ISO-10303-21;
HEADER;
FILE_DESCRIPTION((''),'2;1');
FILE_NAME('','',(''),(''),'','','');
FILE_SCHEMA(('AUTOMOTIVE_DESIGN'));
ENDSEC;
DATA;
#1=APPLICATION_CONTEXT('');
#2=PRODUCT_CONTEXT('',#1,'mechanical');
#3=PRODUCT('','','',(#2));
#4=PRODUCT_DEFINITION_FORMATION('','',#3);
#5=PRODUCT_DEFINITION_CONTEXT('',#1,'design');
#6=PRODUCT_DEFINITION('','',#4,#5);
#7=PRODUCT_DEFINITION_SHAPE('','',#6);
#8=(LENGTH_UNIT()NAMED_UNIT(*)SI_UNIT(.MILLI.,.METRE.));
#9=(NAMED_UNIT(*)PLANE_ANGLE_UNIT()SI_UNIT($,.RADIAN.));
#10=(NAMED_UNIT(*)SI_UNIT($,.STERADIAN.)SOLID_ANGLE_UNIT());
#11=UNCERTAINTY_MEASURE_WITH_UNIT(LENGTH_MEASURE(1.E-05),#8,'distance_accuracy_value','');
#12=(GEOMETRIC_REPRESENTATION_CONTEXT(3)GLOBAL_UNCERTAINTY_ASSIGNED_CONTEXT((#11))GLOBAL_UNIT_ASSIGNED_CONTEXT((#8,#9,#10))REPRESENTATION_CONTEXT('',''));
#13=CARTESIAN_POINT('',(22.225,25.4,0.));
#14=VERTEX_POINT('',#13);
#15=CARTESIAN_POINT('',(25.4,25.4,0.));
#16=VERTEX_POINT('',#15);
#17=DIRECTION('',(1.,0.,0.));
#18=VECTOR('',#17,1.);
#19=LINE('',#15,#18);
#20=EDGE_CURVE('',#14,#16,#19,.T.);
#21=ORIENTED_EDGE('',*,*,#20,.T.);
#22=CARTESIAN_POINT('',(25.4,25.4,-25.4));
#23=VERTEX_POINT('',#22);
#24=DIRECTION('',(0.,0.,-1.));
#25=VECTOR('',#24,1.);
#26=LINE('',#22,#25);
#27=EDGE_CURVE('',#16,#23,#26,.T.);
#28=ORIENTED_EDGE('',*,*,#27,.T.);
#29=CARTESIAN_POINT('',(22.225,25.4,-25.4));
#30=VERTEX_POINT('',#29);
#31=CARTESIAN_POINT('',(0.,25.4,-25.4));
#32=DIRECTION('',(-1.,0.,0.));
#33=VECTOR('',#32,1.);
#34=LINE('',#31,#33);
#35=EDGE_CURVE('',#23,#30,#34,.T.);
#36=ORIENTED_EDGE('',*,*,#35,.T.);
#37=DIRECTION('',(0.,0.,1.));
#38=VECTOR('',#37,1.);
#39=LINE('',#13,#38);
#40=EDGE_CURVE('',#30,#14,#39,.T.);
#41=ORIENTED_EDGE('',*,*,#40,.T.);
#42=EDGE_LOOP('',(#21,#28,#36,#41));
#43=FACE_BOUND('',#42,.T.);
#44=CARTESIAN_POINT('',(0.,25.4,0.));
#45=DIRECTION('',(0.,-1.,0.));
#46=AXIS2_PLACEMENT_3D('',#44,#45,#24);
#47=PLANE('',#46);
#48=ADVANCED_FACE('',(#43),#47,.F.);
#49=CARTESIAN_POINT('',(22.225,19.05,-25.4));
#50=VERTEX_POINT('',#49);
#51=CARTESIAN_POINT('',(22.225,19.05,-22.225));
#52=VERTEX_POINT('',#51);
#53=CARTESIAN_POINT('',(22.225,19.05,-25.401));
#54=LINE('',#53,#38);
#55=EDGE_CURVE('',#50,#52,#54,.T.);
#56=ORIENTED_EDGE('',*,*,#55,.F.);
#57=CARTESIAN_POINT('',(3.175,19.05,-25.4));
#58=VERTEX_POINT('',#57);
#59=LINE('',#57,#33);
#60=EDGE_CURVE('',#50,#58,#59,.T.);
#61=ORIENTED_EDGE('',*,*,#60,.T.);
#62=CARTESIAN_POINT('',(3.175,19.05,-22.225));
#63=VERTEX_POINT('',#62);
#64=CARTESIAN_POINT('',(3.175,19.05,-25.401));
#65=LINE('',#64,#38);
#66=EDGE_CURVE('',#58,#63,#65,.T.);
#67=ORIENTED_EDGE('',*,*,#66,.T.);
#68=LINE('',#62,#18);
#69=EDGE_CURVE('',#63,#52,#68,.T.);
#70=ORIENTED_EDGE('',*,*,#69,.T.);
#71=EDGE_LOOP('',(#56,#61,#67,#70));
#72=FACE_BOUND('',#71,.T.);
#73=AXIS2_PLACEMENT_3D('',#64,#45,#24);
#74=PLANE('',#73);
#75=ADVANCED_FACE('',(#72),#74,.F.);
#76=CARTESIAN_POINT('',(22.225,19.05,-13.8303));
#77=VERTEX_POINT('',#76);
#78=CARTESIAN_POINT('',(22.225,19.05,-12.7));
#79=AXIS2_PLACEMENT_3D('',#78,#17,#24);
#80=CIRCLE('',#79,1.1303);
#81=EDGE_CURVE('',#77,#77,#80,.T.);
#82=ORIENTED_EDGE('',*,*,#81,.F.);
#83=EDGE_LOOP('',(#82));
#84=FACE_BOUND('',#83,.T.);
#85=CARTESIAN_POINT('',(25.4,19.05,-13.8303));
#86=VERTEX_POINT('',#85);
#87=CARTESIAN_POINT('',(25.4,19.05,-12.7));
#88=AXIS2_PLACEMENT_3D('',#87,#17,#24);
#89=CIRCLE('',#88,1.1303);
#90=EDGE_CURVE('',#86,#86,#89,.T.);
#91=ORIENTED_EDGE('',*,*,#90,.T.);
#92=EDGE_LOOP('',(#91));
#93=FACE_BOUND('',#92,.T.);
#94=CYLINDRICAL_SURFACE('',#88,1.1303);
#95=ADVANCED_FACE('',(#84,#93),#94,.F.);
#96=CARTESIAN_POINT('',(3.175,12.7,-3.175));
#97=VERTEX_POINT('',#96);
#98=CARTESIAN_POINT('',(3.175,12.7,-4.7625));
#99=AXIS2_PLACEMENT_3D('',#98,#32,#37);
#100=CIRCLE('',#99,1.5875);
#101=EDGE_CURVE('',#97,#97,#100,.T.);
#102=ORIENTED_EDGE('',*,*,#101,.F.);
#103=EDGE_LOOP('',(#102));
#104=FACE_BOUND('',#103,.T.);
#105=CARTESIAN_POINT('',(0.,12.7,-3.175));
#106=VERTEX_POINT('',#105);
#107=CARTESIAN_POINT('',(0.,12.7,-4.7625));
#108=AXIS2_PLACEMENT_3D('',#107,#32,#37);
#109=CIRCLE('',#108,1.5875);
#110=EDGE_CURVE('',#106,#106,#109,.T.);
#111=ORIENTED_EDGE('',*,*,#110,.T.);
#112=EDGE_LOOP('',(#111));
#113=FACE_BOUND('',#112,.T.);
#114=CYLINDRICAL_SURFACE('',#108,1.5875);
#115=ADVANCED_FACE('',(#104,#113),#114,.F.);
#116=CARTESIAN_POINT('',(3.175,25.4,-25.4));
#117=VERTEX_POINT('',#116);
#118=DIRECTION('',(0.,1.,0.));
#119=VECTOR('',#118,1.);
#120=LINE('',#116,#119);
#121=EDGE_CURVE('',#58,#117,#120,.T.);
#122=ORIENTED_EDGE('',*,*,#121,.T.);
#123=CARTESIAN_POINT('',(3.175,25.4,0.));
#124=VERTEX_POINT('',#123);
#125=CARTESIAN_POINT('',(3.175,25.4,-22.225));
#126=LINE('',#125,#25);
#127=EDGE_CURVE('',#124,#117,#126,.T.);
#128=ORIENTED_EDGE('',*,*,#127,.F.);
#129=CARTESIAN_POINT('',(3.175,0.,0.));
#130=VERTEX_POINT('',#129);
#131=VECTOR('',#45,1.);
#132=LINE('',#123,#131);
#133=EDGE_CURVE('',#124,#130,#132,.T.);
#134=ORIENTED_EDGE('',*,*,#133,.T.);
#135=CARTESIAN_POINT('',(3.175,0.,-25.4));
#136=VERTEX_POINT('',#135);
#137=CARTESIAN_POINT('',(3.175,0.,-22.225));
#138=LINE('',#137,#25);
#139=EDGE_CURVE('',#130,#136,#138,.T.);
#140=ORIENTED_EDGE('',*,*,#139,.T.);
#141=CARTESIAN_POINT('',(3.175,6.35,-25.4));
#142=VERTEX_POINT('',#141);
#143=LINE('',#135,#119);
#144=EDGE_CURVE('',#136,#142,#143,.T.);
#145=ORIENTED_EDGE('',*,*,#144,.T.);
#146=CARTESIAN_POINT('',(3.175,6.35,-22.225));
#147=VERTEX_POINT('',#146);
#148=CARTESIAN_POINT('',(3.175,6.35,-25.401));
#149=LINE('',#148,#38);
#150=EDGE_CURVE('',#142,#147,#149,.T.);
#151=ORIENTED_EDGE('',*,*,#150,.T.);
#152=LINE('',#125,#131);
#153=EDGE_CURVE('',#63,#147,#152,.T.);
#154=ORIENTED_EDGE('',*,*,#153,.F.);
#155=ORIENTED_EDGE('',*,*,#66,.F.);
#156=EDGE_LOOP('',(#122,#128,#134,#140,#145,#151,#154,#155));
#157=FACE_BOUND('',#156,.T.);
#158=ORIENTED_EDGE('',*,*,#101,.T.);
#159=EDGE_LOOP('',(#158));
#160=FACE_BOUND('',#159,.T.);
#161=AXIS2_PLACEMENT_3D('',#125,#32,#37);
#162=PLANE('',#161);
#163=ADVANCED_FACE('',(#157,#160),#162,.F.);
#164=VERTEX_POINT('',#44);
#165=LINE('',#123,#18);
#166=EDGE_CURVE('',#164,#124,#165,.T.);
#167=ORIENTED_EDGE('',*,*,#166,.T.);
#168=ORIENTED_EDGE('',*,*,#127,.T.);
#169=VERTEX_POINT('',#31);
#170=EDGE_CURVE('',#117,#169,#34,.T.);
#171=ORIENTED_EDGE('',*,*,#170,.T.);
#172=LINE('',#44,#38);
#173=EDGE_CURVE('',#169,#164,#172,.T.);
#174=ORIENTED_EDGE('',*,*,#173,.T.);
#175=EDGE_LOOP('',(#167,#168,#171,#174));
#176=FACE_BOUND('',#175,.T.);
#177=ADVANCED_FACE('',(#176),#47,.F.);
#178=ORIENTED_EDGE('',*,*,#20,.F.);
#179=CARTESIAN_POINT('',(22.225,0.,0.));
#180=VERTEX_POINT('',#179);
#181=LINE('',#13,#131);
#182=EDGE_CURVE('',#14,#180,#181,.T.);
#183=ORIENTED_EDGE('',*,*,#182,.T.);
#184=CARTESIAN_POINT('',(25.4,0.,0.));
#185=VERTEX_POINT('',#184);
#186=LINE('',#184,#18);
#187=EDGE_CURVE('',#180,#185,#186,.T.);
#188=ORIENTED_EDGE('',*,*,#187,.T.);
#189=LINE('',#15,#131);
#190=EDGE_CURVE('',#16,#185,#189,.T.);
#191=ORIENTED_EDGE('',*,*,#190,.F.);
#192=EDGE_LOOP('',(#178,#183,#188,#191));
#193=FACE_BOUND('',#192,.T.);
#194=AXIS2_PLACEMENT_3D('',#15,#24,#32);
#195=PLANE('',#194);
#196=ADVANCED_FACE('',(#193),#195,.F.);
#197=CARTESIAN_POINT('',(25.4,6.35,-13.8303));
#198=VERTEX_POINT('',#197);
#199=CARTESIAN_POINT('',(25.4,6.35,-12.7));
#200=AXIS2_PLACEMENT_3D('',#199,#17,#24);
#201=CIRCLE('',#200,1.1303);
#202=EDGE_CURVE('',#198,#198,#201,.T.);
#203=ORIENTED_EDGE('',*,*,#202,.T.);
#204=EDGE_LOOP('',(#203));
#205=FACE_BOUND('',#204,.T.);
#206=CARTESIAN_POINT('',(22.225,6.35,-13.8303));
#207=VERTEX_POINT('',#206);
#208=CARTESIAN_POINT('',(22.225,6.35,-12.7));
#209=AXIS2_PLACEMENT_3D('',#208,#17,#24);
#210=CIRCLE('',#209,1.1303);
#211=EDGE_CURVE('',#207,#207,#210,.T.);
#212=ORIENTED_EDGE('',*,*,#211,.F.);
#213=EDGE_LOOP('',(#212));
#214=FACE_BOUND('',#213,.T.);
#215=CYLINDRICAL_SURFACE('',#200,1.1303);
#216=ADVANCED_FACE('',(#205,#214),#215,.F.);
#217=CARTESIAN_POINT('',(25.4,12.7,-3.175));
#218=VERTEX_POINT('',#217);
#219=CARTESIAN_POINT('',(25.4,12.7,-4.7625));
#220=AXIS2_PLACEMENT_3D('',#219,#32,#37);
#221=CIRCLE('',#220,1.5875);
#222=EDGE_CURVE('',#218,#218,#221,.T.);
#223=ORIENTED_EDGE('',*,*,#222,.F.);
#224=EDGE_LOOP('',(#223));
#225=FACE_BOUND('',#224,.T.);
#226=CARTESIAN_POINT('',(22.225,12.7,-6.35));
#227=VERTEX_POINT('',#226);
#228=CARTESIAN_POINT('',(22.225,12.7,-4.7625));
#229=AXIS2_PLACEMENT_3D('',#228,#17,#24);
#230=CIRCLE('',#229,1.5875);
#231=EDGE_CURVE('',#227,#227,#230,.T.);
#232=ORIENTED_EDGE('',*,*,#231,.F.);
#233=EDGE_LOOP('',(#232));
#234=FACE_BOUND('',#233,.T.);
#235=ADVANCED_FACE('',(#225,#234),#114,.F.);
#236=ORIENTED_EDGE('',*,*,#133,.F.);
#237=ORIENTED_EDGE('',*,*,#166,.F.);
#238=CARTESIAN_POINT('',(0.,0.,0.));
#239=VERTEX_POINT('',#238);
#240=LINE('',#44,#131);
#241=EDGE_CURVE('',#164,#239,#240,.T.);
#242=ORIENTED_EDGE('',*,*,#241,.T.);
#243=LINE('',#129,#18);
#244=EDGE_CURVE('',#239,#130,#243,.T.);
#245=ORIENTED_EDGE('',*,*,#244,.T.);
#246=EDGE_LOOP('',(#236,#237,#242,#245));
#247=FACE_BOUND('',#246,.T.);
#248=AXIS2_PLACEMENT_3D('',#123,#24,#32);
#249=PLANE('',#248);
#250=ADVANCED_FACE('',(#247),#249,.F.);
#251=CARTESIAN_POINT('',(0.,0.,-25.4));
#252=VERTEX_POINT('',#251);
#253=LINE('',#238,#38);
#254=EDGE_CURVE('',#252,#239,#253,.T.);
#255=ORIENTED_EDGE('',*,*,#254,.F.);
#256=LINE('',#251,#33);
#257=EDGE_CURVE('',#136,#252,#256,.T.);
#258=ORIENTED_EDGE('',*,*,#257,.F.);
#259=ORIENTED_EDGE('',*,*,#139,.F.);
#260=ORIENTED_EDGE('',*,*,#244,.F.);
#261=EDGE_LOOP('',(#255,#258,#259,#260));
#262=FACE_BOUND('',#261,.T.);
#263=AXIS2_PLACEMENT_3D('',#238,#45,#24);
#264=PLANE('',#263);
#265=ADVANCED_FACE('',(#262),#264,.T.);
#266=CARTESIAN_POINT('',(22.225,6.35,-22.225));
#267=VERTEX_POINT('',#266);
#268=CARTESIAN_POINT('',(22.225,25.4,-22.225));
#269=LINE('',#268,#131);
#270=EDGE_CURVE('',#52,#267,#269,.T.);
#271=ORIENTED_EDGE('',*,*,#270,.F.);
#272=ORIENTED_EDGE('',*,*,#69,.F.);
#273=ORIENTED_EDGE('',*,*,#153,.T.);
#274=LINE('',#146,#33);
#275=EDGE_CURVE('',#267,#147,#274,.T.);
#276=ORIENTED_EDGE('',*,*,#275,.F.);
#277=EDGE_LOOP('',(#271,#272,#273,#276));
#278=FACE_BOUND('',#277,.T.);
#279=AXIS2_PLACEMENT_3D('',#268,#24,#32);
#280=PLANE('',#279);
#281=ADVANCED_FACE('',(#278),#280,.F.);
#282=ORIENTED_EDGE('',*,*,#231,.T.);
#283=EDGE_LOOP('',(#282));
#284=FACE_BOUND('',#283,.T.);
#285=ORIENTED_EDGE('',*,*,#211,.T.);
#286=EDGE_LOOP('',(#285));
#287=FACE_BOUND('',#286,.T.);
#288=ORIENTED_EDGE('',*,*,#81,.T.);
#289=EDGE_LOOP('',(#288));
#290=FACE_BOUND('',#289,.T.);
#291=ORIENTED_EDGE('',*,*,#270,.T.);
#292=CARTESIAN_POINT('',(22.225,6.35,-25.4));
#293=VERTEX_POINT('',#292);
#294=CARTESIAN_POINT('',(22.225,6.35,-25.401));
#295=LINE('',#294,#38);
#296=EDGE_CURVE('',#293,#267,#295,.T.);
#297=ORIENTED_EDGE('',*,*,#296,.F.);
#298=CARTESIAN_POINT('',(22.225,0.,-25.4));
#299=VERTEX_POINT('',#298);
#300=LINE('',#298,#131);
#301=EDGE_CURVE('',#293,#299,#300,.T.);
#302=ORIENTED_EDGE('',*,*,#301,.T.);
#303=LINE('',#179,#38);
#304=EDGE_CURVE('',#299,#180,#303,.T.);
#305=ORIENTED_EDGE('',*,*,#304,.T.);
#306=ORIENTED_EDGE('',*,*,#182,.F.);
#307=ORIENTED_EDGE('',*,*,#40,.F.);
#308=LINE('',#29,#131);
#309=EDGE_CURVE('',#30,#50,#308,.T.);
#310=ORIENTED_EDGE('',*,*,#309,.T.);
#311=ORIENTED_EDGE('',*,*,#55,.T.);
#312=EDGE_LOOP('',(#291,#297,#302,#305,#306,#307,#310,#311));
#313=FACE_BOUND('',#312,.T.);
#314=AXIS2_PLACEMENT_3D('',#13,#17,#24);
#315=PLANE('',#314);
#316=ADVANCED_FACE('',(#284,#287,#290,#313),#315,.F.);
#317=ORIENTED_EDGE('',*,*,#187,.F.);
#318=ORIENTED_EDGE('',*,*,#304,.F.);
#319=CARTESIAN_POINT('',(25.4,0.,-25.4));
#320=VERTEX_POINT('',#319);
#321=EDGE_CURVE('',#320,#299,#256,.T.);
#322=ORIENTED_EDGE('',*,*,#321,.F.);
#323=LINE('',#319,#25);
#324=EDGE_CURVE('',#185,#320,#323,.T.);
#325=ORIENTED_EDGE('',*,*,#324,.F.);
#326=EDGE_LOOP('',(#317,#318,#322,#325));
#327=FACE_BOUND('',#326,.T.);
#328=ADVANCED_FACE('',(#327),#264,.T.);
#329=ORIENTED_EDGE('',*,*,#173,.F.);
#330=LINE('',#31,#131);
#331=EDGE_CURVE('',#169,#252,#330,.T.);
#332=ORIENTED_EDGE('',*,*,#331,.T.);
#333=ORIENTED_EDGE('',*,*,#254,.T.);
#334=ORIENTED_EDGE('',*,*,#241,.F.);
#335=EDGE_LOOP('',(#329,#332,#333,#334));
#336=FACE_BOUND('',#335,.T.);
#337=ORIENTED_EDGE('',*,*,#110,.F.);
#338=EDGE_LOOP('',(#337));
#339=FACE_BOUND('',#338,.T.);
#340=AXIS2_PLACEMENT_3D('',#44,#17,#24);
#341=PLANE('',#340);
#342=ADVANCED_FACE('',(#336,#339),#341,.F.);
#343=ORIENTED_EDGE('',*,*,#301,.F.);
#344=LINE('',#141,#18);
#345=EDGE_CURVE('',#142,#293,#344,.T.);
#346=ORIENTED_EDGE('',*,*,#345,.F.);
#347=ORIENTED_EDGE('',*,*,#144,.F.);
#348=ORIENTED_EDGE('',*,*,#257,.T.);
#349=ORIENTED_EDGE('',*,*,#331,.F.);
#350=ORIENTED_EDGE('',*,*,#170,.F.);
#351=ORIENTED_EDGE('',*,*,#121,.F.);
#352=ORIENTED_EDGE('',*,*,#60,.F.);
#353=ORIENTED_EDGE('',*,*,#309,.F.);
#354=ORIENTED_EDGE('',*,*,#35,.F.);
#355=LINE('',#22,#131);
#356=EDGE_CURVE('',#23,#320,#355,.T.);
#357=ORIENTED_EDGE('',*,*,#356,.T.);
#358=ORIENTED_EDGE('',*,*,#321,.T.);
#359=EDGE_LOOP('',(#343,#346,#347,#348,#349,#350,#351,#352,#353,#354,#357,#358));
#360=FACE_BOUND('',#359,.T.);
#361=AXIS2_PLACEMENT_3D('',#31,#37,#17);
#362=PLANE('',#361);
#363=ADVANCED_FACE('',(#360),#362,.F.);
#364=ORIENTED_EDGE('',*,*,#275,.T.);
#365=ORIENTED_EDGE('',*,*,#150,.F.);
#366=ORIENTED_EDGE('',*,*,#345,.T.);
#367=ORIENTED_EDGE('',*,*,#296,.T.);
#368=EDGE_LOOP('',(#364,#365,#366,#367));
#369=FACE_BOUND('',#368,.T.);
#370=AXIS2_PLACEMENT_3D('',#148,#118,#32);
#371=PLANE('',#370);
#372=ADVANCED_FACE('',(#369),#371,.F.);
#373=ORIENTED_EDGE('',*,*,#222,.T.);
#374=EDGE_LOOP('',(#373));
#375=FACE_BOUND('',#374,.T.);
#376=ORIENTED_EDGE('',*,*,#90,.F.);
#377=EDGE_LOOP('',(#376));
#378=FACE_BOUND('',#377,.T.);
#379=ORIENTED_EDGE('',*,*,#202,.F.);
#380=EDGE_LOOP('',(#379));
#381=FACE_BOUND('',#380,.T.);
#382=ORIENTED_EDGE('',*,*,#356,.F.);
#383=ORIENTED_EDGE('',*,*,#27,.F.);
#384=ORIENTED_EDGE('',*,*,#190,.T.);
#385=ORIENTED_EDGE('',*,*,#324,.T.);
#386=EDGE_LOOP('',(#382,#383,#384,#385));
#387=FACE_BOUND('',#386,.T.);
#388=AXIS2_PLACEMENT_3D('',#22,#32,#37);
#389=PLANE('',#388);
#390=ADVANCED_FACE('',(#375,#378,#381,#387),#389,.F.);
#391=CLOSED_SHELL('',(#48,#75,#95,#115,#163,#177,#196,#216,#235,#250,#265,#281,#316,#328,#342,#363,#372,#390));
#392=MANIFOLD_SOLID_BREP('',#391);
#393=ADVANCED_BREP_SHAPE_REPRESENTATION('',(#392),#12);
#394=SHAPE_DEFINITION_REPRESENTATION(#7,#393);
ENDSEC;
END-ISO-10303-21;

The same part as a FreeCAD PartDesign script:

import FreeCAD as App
import Part
import Sketcher

V = App.Vector
Q = App.Units.Quantity


def add_polygon(sketch, points):
    """Adds a closed chain of lines whose ends are joined by coincident constraints."""
    first, n = sketch.GeometryCount, len(points)
    for a, b in zip(points, points[1:] + points[:1]):
        sketch.addGeometry(Part.LineSegment(App.Vector(*a, 0), App.Vector(*b, 0)), False)
    for i in range(n):
        sketch.addConstraint(Sketcher.Constraint("Coincident", first + i, 2, first + (i + 1) % n, 1))

doc = App.newDocument("Part")
params = doc.addObject("Spreadsheet::Sheet", "Params")
for row, (alias, value) in enumerate([
    ("sketch1_width", "1 in"),
    ("sketch1_width2", "0.75 in"),
    ("sketch1_height", "0.875 in"),
    ("pad1_length", "1 in"),
    ("sketch2_diameter", "0.125 in"),
    ("hole_diameter", "0.125 in"),
    ("sketch3_diameter", "0.089 in"),
    ("hole2_diameter", "0.089 in"),
    ("hole2_depth", "0.125 in"),
    ("sketch4_width", "0.75 in"),
    ("sketch4_height", "0.25 in"),
    ("sketch5_width", "0.75 in"),
    ("sketch5_height", "0.25 in"),
], start=1):
    params.set(f"A{row}", alias)
    params.set(f"B{row}", "=" + value)
    params.setAlias(f"B{row}", alias)

body = doc.addObject("PartDesign::Body", "Body")

# Sketch on XZ plane
sketch1 = doc.addObject("Sketcher::SketchObject", "Sketch")
body.addObject(sketch1)
sketch1.AttachmentSupport = (doc.XZ_Plane, [""])
sketch1.MapMode = "FlatFace"
add_polygon(sketch1, [(0, -25.4), (0, 0), (3.175, 0), (3.175, -22.225), (22.225, -22.225), (22.225, 0), (25.4, 0), (25.4, -25.4)])  # lines 0-7
sketch1.addConstraint(Sketcher.Constraint("Vertical", 0))
sketch1.addConstraint(Sketcher.Constraint("Horizontal", 1))
sketch1.addConstraint(Sketcher.Constraint("Vertical", 2))
sketch1.addConstraint(Sketcher.Constraint("Horizontal", 3))
sketch1.addConstraint(Sketcher.Constraint("Vertical", 4))
sketch1.addConstraint(Sketcher.Constraint("Horizontal", 5))
sketch1.addConstraint(Sketcher.Constraint("Vertical", 6))
sketch1.addConstraint(Sketcher.Constraint("Horizontal", 7))
sketch1.addConstraint(Sketcher.Constraint("Coincident", 0, 2, -1, 1))
sketch1.addConstraint(Sketcher.Constraint("PointOnObject", 4, 2, -1))
sketch1.addConstraint(Sketcher.Constraint("Equal", 1, 5))
sketch1.addConstraint(Sketcher.Constraint("Equal", 7, 0))
sketch1.addConstraint(Sketcher.Constraint("DistanceX", 7, 2, 7, 1, Q("1 in")))
sketch1.addConstraint(Sketcher.Constraint("DistanceX", 3, 1, 3, 2, Q("0.75 in")))
sketch1.addConstraint(Sketcher.Constraint("DistanceY", 2, 2, 2, 1, Q("0.875 in")))
sketch1.setExpression("Constraints[20]", "Params.sketch1_width")
sketch1.setExpression("Constraints[21]", "Params.sketch1_width2")
sketch1.setExpression("Constraints[22]", "Params.sketch1_height")
pad1 = doc.addObject("PartDesign::Pad", "Pad")
body.addObject(pad1)
pad1.Profile = sketch1
pad1.setExpression("Length", "Params.pad1_length")
pad1.Reversed = True

# Sketch on YZ plane
sketch2 = doc.addObject("Sketcher::SketchObject", "Sketch001")
body.addObject(sketch2)
sketch2.AttachmentSupport = (doc.YZ_Plane, [""])
sketch2.MapMode = "FlatFace"
sketch2.addGeometry(Part.Circle(V(12.7, -4.7625, 0), V(0, 0, 1), 1.5875), False)
sketch2.addConstraint(Sketcher.Constraint("Diameter", 0, Q("0.125 in")))
sketch2.addConstraint(Sketcher.Constraint("DistanceX", -1, 1, 0, 3, Q("0.5 in")))
sketch2.addConstraint(Sketcher.Constraint("DistanceY", 0, 3, -1, 1, Q("0.1875 in")))
sketch2.setExpression("Constraints[0]", "Params.sketch2_diameter")
doc.recompute()
hole = doc.addObject("PartDesign::Hole", "Hole")
body.addObject(hole)
hole.Profile = sketch2
hole.ThreadType = "None"
hole.setExpression("Diameter", "Params.hole_diameter")
hole.DepthType = "ThroughAll"
hole.Reversed = True

# Sketch on YZ plane
sketch3 = doc.addObject("Sketcher::SketchObject", "Sketch002")
body.addObject(sketch3)
sketch3.AttachmentSupport = (doc.YZ_Plane, [""])
sketch3.MapMode = "FlatFace"
sketch3.AttachmentOffset = App.Placement(V(0, 0, 1 * 25.4), App.Rotation())
sketch3.addGeometry(Part.Circle(V(19.05, -12.7, 0), V(0, 0, 1), 1.1303), False)
sketch3.addGeometry(Part.Circle(V(6.35, -12.7, 0), V(0, 0, 1), 1.1303), False)
sketch3.addConstraint(Sketcher.Constraint("Equal", 0, 1))
sketch3.addConstraint(Sketcher.Constraint("Horizontal", 0, 3, 1, 3))
sketch3.addConstraint(Sketcher.Constraint("Diameter", 0, Q("0.089 in")))
sketch3.addConstraint(Sketcher.Constraint("DistanceY", 0, 3, -1, 1, Q("0.5 in")))
sketch3.addConstraint(Sketcher.Constraint("DistanceX", 1, 3, 0, 3, Q("0.5 in")))
sketch3.addConstraint(Sketcher.Constraint("DistanceX", -1, 1, 0, 3, Q("0.75 in")))
sketch3.setExpression("Constraints[2]", "Params.sketch3_diameter")
doc.recompute()
hole2 = doc.addObject("PartDesign::Hole", "Hole001")
body.addObject(hole2)
hole2.Profile = sketch3
hole2.ThreadType = "None"
hole2.setExpression("Diameter", "Params.hole2_diameter")
hole2.DepthType = "Dimension"
hole2.setExpression("Depth", "Params.hole2_depth")
hole2.DrillPoint = "Flat"

# Sketch on XY plane
sketch4 = doc.addObject("Sketcher::SketchObject", "Sketch003")
body.addObject(sketch4)
sketch4.AttachmentSupport = (doc.XY_Plane, [""])
sketch4.MapMode = "FlatFace"
sketch4.AttachmentOffset = App.Placement(V(0, 0, -0.875 * 25.4), App.Rotation())
add_polygon(sketch4, [(3.175, 25.4), (3.175, 19.05), (22.225, 19.05), (22.225, 25.4)])  # lines 0-3
sketch4.addConstraint(Sketcher.Constraint("Vertical", 0))
sketch4.addConstraint(Sketcher.Constraint("Horizontal", 1))
sketch4.addConstraint(Sketcher.Constraint("Vertical", 2))
sketch4.addConstraint(Sketcher.Constraint("Horizontal", 3))
sketch4.addConstraint(Sketcher.Constraint("DistanceY", -1, 1, 2, 2, Q("1 in")))
sketch4.addConstraint(Sketcher.Constraint("DistanceX", 1, 1, 1, 2, Q("0.75 in")))
sketch4.addConstraint(Sketcher.Constraint("DistanceY", 0, 2, 0, 1, Q("0.25 in")))
sketch4.addConstraint(Sketcher.Constraint("DistanceX", -1, 1, 0, 2, Q("0.125 in")))
sketch4.setExpression("Constraints[9]", "Params.sketch4_width")
sketch4.setExpression("Constraints[10]", "Params.sketch4_height")
pocket1 = doc.addObject("PartDesign::Pocket", "Pocket")
body.addObject(pocket1)
pocket1.Profile = sketch4
pocket1.Type = "UpToFirst"

# Sketch on XY plane
sketch5 = doc.addObject("Sketcher::SketchObject", "Sketch004")
body.addObject(sketch5)
sketch5.AttachmentSupport = (doc.XY_Plane, [""])
sketch5.MapMode = "FlatFace"
sketch5.AttachmentOffset = App.Placement(V(0, 0, -0.875 * 25.4), App.Rotation())
add_polygon(sketch5, [(3.175, 6.35), (3.175, 0), (22.225, 0), (22.225, 6.35)])  # lines 0-3
sketch5.addConstraint(Sketcher.Constraint("Vertical", 0))
sketch5.addConstraint(Sketcher.Constraint("Horizontal", 1))
sketch5.addConstraint(Sketcher.Constraint("Vertical", 2))
sketch5.addConstraint(Sketcher.Constraint("Horizontal", 3))
sketch5.addConstraint(Sketcher.Constraint("PointOnObject", 0, 2, -1))
sketch5.addConstraint(Sketcher.Constraint("DistanceX", 1, 1, 1, 2, Q("0.75 in")))
sketch5.addConstraint(Sketcher.Constraint("DistanceY", 0, 2, 0, 1, Q("0.25 in")))
sketch5.addConstraint(Sketcher.Constraint("DistanceX", -1, 1, 0, 2, Q("0.125 in")))
sketch5.setExpression("Constraints[9]", "Params.sketch5_width")
sketch5.setExpression("Constraints[10]", "Params.sketch5_height")
pocket2 = doc.addObject("PartDesign::Pocket", "Pocket001")
body.addObject(pocket2)
pocket2.Profile = sketch5
pocket2.Type = "UpToFirst"

doc.recompute()
